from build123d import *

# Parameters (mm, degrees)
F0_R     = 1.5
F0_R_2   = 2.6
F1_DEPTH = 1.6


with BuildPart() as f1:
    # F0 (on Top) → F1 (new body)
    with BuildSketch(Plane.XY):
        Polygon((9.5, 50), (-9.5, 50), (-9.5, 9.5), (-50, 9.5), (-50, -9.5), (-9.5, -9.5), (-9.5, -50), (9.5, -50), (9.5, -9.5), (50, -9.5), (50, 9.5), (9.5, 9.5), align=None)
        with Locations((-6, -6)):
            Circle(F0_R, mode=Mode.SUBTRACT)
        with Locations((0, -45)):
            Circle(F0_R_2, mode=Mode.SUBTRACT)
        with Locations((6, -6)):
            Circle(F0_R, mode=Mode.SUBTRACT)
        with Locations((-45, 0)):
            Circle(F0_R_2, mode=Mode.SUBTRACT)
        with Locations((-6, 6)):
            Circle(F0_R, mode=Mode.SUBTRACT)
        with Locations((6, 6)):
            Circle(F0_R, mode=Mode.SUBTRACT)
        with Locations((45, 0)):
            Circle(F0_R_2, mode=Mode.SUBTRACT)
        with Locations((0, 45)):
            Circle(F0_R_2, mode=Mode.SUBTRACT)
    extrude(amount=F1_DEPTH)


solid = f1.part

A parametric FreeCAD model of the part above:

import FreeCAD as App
import Part
import Sketcher
from FreeCAD import Vector
Q = App.Units.Quantity


def add_polygon(sketch, points):
    """Adds a closed chain of lines whose ends are joined by coincident constraints."""
    first, n = sketch.GeometryCount, len(points)
    for a, b in zip(points, points[1:] + points[:1]):
        sketch.addGeometry(Part.LineSegment(App.Vector(*a, 0), App.Vector(*b, 0)), False)
    for i in range(n):
        sketch.addConstraint(Sketcher.Constraint("Coincident", first + i, 2, first + (i + 1) % n, 1))

doc = App.newDocument("Part")
body = doc.addObject("PartDesign::Body", "Body")

# Sketch on XY plane
sketch1 = body.newObject("Sketcher::SketchObject", "Sketch")
sketch1.AttachmentSupport = (doc.getObject("XY_Plane"), [""])
sketch1.MapMode = "FlatFace"
add_polygon(sketch1, [(9.5, 50), (-9.5, 50), (-9.5, 9.5), (-50, 9.5), (-50, -9.5), (-9.5, -9.5), (-9.5, -50), (9.5, -50), (9.5, -9.5), (50, -9.5), (50, 9.5), (9.5, 9.5)])  # lines 0-11
sketch1.addGeometry(Part.Circle(Vector(-6, -6, 0), Vector(0, 0, 1), 1.5), False)  # 12
sketch1.addGeometry(Part.Circle(Vector(0, -45, 0), Vector(0, 0, 1), 2.6), False)  # 13
sketch1.addGeometry(Part.Circle(Vector(6, -6, 0), Vector(0, 0, 1), 1.5), False)  # 14
sketch1.addGeometry(Part.Circle(Vector(-45, 0, 0), Vector(0, 0, 1), 2.6), False)  # 15
sketch1.addGeometry(Part.Circle(Vector(-6, 6, 0), Vector(0, 0, 1), 1.5), False)  # 16
sketch1.addGeometry(Part.Circle(Vector(6, 6, 0), Vector(0, 0, 1), 1.5), False)  # 17
sketch1.addGeometry(Part.Circle(Vector(45, 0, 0), Vector(0, 0, 1), 2.6), False)  # 18
sketch1.addGeometry(Part.Circle(Vector(0, 45, 0), Vector(0, 0, 1), 2.6), False)  # 19
sketch1.addConstraint(Sketcher.Constraint("Horizontal", 0))
sketch1.addConstraint(Sketcher.Constraint("Vertical", 1))
sketch1.addConstraint(Sketcher.Constraint("Horizontal", 2))
sketch1.addConstraint(Sketcher.Constraint("Vertical", 3))
sketch1.addConstraint(Sketcher.Constraint("Horizontal", 4))
sketch1.addConstraint(Sketcher.Constraint("Vertical", 5))
sketch1.addConstraint(Sketcher.Constraint("Horizontal", 6))
sketch1.addConstraint(Sketcher.Constraint("Vertical", 7))
sketch1.addConstraint(Sketcher.Constraint("Horizontal", 8))
sketch1.addConstraint(Sketcher.Constraint("Vertical", 9))
sketch1.addConstraint(Sketcher.Constraint("Horizontal", 10))
sketch1.addConstraint(Sketcher.Constraint("Vertical", 11))
sketch1.addConstraint(Sketcher.Constraint("Equal", 12, 14))
sketch1.addConstraint(Sketcher.Constraint("Equal", 13, 15))
sketch1.addConstraint(Sketcher.Constraint("Equal", 14, 16))
sketch1.addConstraint(Sketcher.Constraint("Equal", 16, 17))
sketch1.addConstraint(Sketcher.Constraint("Equal", 15, 18))
sketch1.addConstraint(Sketcher.Constraint("Equal", 18, 19))
sketch1.addConstraint(Sketcher.Constraint("Symmetric", 14, 3, 16, 3, -1, 1))
sketch1.addConstraint(Sketcher.Constraint("Symmetric", 12, 3, 17, 3, -1, 1))
sketch1.addConstraint(Sketcher.Constraint("Symmetric", 15, 3, 18, 3, -1, 1))
sketch1.addConstraint(Sketcher.Constraint("Symmetric", 13, 3, 19, 3, -1, 1))
sketch1.addConstraint(Sketcher.Constraint("Symmetric", 0, 2, 6, 2, -1, 1))
sketch1.addConstraint(Sketcher.Constraint("Symmetric", 2, 2, 8, 2, -1, 1))
sketch1.addConstraint(Sketcher.Constraint("Symmetric", 4, 2, 10, 2, -1, 1))
sketch1.addConstraint(Sketcher.Constraint("Symmetric", 12, 3, 14, 3, -2))
sketch1.addConstraint(Sketcher.Constraint("Symmetric", 4, 2, 7, 2, -2))
sketch1.addConstraint(Sketcher.Constraint("PointOnObject", 13, 3, -2))
sketch1.addConstraint(Sketcher.Constraint("PointOnObject", 15, 3, -1))
sketch1.addConstraint(Sketcher.Constraint("Equal", 10, 1))
sketch1.addConstraint(Sketcher.Constraint("Equal", 6, 3))
sketch1.addConstraint(Sketcher.Constraint("Diameter", 12, Q("3 mm")))
sketch1.addConstraint(Sketcher.Constraint("Diameter", 13, Q("5.2 mm")))
sketch1.addConstraint(Sketcher.Constraint("DistanceX", 0, 2, 0, 1, Q("19 mm")))
sketch1.addConstraint(Sketcher.Constraint("DistanceX", 2, 2, 2, 1, Q("40.5 mm")))
sketch1.addConstraint(Sketcher.Constraint("DistanceX", 12, 3, -1, 1, Q("6 mm")))
sketch1.addConstraint(Sketcher.Constraint("DistanceY", 12, 3, -1, 1, Q("6 mm")))
sketch1.addConstraint(Sketcher.Constraint("DistanceY", 13, 3, -1, 1, Q("45 mm")))
sketch1.addConstraint(Sketcher.Constraint("DistanceX", 15, 3, -1, 1, Q("45 mm")))
pad1 = body.newObject("PartDesign::Pad", "Pad")
pad1.Profile = sketch1
pad1.Length = 1.6

doc.recompute()
